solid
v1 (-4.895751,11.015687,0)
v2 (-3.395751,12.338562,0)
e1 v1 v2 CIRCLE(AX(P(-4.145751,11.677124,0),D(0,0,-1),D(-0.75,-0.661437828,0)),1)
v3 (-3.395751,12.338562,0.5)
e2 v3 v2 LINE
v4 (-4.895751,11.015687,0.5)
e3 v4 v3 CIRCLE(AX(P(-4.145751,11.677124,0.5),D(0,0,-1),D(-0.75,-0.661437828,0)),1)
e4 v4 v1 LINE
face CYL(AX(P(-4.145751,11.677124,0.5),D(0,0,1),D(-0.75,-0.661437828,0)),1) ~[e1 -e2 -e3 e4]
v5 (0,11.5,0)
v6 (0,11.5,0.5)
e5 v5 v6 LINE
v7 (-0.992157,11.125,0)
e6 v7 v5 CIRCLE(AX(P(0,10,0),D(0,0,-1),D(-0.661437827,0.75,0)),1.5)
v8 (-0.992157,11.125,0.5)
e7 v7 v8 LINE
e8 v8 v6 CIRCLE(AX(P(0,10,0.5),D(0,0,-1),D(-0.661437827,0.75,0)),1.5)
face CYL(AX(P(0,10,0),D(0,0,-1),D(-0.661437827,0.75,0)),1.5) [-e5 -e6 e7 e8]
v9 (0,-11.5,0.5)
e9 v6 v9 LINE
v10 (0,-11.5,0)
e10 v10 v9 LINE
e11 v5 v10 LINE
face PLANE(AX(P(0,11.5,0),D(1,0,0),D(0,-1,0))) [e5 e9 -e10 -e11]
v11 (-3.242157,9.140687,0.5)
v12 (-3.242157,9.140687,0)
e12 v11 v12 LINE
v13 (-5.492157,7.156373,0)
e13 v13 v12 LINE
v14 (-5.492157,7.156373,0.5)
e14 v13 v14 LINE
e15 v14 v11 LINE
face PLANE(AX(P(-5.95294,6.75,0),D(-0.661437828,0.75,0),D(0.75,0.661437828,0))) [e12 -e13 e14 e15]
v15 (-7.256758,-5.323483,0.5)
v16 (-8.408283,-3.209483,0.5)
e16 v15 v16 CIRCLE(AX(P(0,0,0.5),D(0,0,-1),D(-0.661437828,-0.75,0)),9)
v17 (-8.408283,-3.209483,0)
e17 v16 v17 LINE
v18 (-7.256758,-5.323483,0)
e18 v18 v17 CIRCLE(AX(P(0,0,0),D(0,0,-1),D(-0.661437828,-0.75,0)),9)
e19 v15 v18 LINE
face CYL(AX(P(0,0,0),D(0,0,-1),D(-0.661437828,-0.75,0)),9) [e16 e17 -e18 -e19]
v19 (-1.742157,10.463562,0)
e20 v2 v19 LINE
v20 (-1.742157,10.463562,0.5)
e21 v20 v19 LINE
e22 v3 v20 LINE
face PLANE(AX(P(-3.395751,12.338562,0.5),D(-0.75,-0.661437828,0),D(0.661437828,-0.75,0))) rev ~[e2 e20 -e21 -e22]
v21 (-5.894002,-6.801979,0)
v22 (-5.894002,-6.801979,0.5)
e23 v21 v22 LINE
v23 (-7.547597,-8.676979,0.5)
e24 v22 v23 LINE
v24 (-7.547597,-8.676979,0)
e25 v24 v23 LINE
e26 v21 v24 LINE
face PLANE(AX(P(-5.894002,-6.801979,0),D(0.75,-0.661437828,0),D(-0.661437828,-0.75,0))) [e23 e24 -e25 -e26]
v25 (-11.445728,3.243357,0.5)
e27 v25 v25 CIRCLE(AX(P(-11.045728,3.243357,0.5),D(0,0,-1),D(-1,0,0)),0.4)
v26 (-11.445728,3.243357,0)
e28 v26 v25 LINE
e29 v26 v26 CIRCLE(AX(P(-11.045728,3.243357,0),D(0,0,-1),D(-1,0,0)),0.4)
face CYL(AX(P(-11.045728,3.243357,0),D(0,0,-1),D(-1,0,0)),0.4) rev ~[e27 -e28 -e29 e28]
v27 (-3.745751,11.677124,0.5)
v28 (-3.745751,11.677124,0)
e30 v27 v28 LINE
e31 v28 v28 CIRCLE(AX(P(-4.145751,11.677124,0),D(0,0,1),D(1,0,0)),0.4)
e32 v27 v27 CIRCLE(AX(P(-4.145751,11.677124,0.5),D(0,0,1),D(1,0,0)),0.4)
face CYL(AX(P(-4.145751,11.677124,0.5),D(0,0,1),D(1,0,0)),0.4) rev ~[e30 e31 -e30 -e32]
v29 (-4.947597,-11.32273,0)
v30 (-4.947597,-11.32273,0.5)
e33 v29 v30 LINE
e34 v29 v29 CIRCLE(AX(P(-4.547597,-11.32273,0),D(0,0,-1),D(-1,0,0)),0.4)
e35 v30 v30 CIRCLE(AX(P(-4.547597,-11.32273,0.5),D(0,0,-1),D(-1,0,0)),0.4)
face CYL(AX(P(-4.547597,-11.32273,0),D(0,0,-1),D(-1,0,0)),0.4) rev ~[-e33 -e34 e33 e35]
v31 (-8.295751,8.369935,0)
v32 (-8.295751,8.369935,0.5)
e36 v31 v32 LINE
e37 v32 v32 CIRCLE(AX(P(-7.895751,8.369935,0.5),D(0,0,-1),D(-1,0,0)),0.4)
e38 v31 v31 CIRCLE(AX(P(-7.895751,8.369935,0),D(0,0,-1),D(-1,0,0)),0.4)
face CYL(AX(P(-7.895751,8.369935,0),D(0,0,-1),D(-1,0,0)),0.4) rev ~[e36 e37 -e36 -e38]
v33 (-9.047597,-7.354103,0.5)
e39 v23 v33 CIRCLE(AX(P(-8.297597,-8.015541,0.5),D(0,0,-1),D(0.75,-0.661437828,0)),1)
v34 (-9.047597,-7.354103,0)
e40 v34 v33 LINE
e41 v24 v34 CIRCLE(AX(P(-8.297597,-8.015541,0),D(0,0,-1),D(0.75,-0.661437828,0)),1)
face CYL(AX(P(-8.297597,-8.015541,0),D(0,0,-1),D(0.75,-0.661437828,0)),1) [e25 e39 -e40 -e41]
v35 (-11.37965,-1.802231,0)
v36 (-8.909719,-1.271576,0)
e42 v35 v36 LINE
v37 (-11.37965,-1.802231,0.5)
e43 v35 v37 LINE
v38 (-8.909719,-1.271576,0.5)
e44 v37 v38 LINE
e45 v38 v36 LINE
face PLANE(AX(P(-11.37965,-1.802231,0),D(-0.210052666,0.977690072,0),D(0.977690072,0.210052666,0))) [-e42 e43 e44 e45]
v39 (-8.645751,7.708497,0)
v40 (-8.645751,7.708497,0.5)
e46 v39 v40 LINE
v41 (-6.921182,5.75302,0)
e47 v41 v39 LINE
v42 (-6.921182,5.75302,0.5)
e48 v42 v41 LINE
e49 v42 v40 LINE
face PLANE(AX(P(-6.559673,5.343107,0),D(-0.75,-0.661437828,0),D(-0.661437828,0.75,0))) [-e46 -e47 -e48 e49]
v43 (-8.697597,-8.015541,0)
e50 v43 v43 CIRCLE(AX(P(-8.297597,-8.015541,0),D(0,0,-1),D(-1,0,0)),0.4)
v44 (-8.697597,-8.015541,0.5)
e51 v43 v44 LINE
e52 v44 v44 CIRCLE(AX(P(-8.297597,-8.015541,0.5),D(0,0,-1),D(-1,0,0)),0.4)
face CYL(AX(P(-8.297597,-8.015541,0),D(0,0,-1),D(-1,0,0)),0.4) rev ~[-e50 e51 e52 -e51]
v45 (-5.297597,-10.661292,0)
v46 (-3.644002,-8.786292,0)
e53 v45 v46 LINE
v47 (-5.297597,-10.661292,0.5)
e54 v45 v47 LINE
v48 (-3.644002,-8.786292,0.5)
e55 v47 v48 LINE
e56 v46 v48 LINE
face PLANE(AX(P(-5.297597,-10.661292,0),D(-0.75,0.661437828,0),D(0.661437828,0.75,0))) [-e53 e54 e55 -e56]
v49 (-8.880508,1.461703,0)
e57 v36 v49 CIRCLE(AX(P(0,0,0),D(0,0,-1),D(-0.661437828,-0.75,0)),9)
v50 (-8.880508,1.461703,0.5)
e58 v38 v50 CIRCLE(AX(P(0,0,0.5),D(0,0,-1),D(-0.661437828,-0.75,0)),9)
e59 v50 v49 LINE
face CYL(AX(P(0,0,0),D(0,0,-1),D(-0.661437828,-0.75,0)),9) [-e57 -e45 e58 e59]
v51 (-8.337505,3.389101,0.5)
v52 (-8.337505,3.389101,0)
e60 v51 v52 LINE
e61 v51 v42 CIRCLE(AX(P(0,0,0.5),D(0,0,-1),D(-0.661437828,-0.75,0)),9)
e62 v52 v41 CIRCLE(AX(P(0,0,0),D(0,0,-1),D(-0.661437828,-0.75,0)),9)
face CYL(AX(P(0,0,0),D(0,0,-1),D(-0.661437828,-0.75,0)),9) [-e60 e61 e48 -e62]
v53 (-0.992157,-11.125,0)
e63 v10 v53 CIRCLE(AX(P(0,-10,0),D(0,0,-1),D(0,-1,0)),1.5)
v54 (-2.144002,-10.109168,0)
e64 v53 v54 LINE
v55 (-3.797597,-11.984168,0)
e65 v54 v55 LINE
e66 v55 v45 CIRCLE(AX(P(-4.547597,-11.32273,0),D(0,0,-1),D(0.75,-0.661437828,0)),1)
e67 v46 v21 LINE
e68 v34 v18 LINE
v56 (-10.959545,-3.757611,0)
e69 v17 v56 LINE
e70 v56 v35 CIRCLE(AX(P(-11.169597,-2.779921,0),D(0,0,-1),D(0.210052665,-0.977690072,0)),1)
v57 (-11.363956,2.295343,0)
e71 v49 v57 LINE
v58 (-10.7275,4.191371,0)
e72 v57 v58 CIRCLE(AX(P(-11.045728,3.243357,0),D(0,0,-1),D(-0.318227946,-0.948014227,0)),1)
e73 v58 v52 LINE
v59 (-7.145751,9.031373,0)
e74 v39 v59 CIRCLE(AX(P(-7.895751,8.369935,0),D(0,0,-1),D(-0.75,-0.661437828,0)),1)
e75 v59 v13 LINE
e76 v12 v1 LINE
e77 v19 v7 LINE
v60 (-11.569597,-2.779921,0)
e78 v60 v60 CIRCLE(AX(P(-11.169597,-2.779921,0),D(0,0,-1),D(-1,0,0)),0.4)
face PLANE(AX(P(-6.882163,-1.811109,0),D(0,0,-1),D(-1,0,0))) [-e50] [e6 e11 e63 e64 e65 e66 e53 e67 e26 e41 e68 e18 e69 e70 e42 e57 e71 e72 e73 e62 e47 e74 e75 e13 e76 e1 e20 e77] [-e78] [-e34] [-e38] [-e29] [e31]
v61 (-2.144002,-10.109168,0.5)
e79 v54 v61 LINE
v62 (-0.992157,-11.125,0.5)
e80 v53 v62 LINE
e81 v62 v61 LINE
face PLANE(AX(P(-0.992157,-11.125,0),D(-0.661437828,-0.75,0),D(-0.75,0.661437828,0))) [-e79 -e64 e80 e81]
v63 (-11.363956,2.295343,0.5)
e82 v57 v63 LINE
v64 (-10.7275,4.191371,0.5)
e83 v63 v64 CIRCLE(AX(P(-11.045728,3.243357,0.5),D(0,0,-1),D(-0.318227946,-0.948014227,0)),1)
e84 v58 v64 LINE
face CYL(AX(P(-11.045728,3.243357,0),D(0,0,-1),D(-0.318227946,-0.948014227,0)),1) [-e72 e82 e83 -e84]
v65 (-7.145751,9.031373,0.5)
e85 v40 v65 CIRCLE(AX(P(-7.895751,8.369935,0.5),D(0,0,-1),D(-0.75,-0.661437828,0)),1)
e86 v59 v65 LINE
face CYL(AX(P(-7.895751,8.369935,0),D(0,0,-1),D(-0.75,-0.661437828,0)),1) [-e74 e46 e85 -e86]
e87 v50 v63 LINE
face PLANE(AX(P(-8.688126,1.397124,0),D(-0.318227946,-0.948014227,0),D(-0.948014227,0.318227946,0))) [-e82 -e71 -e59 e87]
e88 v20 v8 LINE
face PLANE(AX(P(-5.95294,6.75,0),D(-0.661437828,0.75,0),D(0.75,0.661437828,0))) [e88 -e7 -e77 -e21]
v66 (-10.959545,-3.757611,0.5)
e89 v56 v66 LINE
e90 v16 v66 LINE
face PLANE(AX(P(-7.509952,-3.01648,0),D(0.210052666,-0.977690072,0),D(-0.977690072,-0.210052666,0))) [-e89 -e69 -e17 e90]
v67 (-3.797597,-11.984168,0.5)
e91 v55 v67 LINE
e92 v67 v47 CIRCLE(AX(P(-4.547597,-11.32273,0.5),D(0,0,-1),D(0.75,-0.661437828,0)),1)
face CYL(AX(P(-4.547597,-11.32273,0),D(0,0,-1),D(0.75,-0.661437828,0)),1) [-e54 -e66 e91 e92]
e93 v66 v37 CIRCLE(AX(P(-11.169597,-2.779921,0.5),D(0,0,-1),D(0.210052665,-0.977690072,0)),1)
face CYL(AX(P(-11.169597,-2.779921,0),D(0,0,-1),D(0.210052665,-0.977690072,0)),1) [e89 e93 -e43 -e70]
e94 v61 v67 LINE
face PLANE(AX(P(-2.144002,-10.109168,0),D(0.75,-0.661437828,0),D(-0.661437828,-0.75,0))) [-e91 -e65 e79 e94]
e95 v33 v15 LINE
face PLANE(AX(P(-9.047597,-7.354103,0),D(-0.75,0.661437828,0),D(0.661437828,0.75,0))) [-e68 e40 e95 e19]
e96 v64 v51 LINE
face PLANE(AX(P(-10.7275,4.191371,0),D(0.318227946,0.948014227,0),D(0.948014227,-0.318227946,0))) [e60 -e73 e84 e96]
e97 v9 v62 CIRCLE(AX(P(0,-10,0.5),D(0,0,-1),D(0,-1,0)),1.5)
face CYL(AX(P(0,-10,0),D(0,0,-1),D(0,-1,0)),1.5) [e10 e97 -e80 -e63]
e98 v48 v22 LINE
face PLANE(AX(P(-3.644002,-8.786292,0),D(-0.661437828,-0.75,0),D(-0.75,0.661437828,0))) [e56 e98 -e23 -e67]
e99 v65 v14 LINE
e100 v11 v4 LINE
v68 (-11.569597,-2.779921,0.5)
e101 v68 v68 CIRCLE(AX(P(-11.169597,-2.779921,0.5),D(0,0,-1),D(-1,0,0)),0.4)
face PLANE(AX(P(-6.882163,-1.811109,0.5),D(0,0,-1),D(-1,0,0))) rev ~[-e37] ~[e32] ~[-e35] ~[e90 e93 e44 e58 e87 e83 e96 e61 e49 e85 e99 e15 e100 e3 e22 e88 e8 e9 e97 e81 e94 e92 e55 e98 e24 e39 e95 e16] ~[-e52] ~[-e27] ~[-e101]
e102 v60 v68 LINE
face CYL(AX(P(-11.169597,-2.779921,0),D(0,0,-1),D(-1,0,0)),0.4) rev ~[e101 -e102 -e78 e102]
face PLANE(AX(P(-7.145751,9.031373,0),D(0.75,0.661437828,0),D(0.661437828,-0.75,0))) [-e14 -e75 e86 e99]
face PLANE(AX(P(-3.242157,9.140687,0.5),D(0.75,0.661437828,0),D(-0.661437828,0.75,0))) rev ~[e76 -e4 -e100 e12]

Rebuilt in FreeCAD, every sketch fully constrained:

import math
import FreeCAD as App
import Part
import Sketcher

V = App.Vector

doc = App.newDocument("Part")
body = doc.addObject("PartDesign::Body", "Body")

# Sketch on XY plane
sketch1 = body.newObject("Sketcher::SketchObject", "Sketch")
sketch1.AttachmentSupport = (doc.getObject("XY_Plane"), [""])
sketch1.MapMode = "FlatFace"
sketch1.addGeometry(Part.LineSegment(V(0, -11.5, 0), V(0, 11.5, 0)), False)
sketch1.addGeometry(Part.ArcOfCircle(Part.Circle(V(0, 10, 0), V(0, 0, 1), 1.5), math.radians(90), math.radians(131.409622)), False)
sketch1.addGeometry(Part.LineSegment(V(-0.992157, 11.125, 0), V(-5.95294, 6.75, 0)), False)
sketch1.addGeometry(Part.ArcOfCircle(Part.Circle(V(0, 0, 0), V(0, 0, 1), 9), math.radians(131.409622), math.radians(228.590378)), False)
sketch1.addGeometry(Part.LineSegment(V(-5.95294, -6.75, 0), V(-0.992157, -11.125, 0)), False)
sketch1.addGeometry(Part.ArcOfCircle(Part.Circle(V(0, -10, 0), V(0, 0, 1), 1.5), math.radians(-131.409622), math.radians(-90)), False)
sketch1.addConstraint(Sketcher.Constraint("Coincident", 0, 2, 1, 1))
sketch1.addConstraint(Sketcher.Constraint("Tangent", 1, 2, 2, 1))
sketch1.addConstraint(Sketcher.Constraint("Tangent", 2, 2, 3, 1))
sketch1.addConstraint(Sketcher.Constraint("Tangent", 3, 2, 4, 1))
sketch1.addConstraint(Sketcher.Constraint("Tangent", 4, 2, 5, 1))
sketch1.addConstraint(Sketcher.Constraint("Coincident", 5, 2, 0, 1))
sketch1.addConstraint(Sketcher.Constraint("Vertical", 0))
sketch1.addConstraint(Sketcher.Constraint("Coincident", 3, 3, -1, 1))
sketch1.addConstraint(Sketcher.Constraint("Equal", 1, 5))
sketch1.addConstraint(Sketcher.Constraint("Symmetric", 1, 3, 5, 3, -1, 1))
sketch1.addConstraint(Sketcher.Constraint("PointOnObject", 1, 3, -2))
sketch1.addConstraint(Sketcher.Constraint("PointOnObject", 0, 2, -2))
sketch1.addConstraint(Sketcher.Constraint("Radius", 3, 9.0))
sketch1.addConstraint(Sketcher.Constraint("Radius", 1, 1.5))
sketch1.addConstraint(Sketcher.Constraint("DistanceY", 0, 1, 0, 2, 23.0))
pad1 = body.newObject("PartDesign::Pad", "Pad")
pad1.Profile = sketch1
pad1.Length = 0.5

# Sketch on XY plane
sketch2 = body.newObject("Sketcher::SketchObject", "Sketch001")
sketch2.AttachmentSupport = (doc.getObject("XY_Plane"), [""])
sketch2.MapMode = "FlatFace"
sketch2.AttachmentOffset = App.Placement(V(0, 0, 0.5), App.Rotation())
sketch2.addGeometry(Part.LineSegment(V(-1.742157, 10.463562, 0), V(-3.395751, 12.338562, 0)), False)
sketch2.addGeometry(Part.ArcOfCircle(Part.Circle(V(-4.145751, 11.677124, 0), V(0, 0, 1), 1), math.radians(41.409622), math.radians(221.409622)), False)
sketch2.addGeometry(Part.LineSegment(V(-4.895751, 11.015687, 0), V(-3.242157, 9.140687, 0)), False)
sketch2.addGeometry(Part.LineSegment(V(-3.242157, 9.140687, 0), V(-1.742157, 10.463562, 0)), False)
sketch2.addGeometry(Part.Circle(V(-4.145751, 11.677124, 0), V(0, 0, 1), 0.4), False)
sketch2.addConstraint(Sketcher.Constraint("Tangent", 0, 2, 1, 1))
sketch2.addConstraint(Sketcher.Constraint("Tangent", 1, 2, 2, 1))
sketch2.addConstraint(Sketcher.Constraint("Coincident", 2, 2, 3, 1))
sketch2.addConstraint(Sketcher.Constraint("Coincident", 3, 2, 0, 1))
sketch2.addConstraint(Sketcher.Constraint("Coincident", 4, 3, 1, 3))
sketch2.addConstraint(Sketcher.Constraint("Parallel", 0, 2))
sketch2.addConstraint(Sketcher.Constraint("Perpendicular", 2, 3))
sketch2.addConstraint(Sketcher.Constraint("Radius", 1, 1.0))
sketch2.addConstraint(Sketcher.Constraint("Diameter", 4, 0.8))
sketch2.addConstraint(Sketcher.Constraint("Distance", 0, 2.5))
sketch2.addConstraint(Sketcher.Constraint("DistanceX", 1, 2, 0, 2, 1.5))
sketch2.addConstraint(Sketcher.Constraint("DistanceX", 1, 3, -1, 1, 4.145751))
sketch2.addConstraint(Sketcher.Constraint("DistanceY", -1, 1, 1, 3, 11.677124))
pad2 = body.newObject("PartDesign::Pad", "Pad001")
pad2.Profile = sketch2
pad2.Length = 0.5
pad2.Reversed = True

# Sketch on XY plane
sketch3 = body.newObject("Sketcher::SketchObject", "Sketch002")
sketch3.AttachmentSupport = (doc.getObject("XY_Plane"), [""])
sketch3.MapMode = "FlatFace"
sketch3.addGeometry(Part.LineSegment(V(-7.145751, 9.031373, 0), V(-5.492157, 7.156373, 0)), False)
sketch3.addGeometry(Part.LineSegment(V(-5.492157, 7.156373, 0), V(-2.144002, -10.109168, 0)), False)
sketch3.addGeometry(Part.LineSegment(V(-2.144002, -10.109168, 0), V(-3.797597, -11.984168, 0)), False)
sketch3.addGeometry(Part.ArcOfCircle(Part.Circle(V(-4.547597, -11.32273, 0), V(0, 0, 1), 1), math.radians(138.590378), math.radians(318.590378)), False)
sketch3.addGeometry(Part.LineSegment(V(-5.297597, -10.661292, 0), V(-3.644002, -8.786292, 0)), False)
sketch3.addGeometry(Part.LineSegment(V(-3.644002, -8.786292, 0), V(-5.894002, -6.801979, 0)), False)
sketch3.addGeometry(Part.LineSegment(V(-5.894002, -6.801979, 0), V(-7.547597, -8.676979, 0)), False)
sketch3.addGeometry(Part.ArcOfCircle(Part.Circle(V(-8.297597, -8.015541, 0), V(0, 0, 1), 1), math.radians(138.590378), math.radians(318.590378)), False)
sketch3.addGeometry(Part.LineSegment(V(-9.047597, -7.354103, 0), V(-7.061797, -5.102418, 0)), False)
sketch3.addGeometry(Part.LineSegment(V(-7.061797, -5.102418, 0), V(-7.509952, -3.01648, 0)), False)
sketch3.addGeometry(Part.LineSegment(V(-7.509952, -3.01648, 0), V(-10.959545, -3.757611, 0)), False)
sketch3.addGeometry(Part.ArcOfCircle(Part.Circle(V(-11.169597, -2.779921, 0), V(0, 0, 1), 1), math.radians(102.125439), math.radians(282.125439)), False)
sketch3.addGeometry(Part.LineSegment(V(-11.37965, -1.802231, 0), V(-8.149842, -1.10832, 0)), False)
sketch3.addGeometry(Part.LineSegment(V(-8.149842, -1.10832, 0), V(-8.688126, 1.397124, 0)), False)
sketch3.addGeometry(Part.LineSegment(V(-8.688126, 1.397124, 0), V(-11.363956, 2.295343, 0)), False)
sketch3.addGeometry(Part.ArcOfCircle(Part.Circle(V(-11.045728, 3.243357, 0), V(0, 0, 1), 1), math.radians(71.444208), math.radians(251.444208)), False)
sketch3.addGeometry(Part.LineSegment(V(-10.7275, 4.191371, 0), V(-8.034608, 3.287425, 0)), False)
sketch3.addGeometry(Part.LineSegment(V(-8.034608, 3.287425, 0), V(-6.559673, 5.343107, 0)), False)
sketch3.addGeometry(Part.LineSegment(V(-6.559673, 5.343107, 0), V(-8.645751, 7.708497, 0)), False)
sketch3.addGeometry(Part.ArcOfCircle(Part.Circle(V(-7.895751, 8.369935, 0), V(0, 0, 1), 1), math.radians(41.409622), math.radians(221.409622)), False)
sketch3.addGeometry(Part.Circle(V(-4.547597, -11.32273, 0), V(0, 0, 1), 0.4), False)
sketch3.addGeometry(Part.Circle(V(-8.297597, -8.015541, 0), V(0, 0, 1), 0.4), False)
sketch3.addGeometry(Part.Circle(V(-11.169597, -2.779921, 0), V(0, 0, 1), 0.4), False)
sketch3.addGeometry(Part.Circle(V(-11.045728, 3.243357, 0), V(0, 0, 1), 0.4), False)
sketch3.addGeometry(Part.Circle(V(-7.895751, 8.369935, 0), V(0, 0, 1), 0.4), False)
sketch3.addConstraint(Sketcher.Constraint("Coincident", 0, 2, 1, 1))
sketch3.addConstraint(Sketcher.Constraint("Coincident", 1, 2, 2, 1))
sketch3.addConstraint(Sketcher.Constraint("Tangent", 2, 2, 3, 2))
sketch3.addConstraint(Sketcher.Constraint("Tangent", 3, 1, 4, 1))
sketch3.addConstraint(Sketcher.Constraint("Coincident", 4, 2, 5, 1))
sketch3.addConstraint(Sketcher.Constraint("Coincident", 5, 2, 6, 1))
sketch3.addConstraint(Sketcher.Constraint("Tangent", 6, 2, 7, 2))
sketch3.addConstraint(Sketcher.Constraint("Tangent", 7, 1, 8, 1))
sketch3.addConstraint(Sketcher.Constraint("Coincident", 8, 2, 9, 1))
sketch3.addConstraint(Sketcher.Constraint("Coincident", 9, 2, 10, 1))
sketch3.addConstraint(Sketcher.Constraint("Tangent", 10, 2, 11, 2))
sketch3.addConstraint(Sketcher.Constraint("Tangent", 11, 1, 12, 1))
sketch3.addConstraint(Sketcher.Constraint("Coincident", 12, 2, 13, 1))
sketch3.addConstraint(Sketcher.Constraint("Coincident", 13, 2, 14, 1))
sketch3.addConstraint(Sketcher.Constraint("Tangent", 14, 2, 15, 2))
sketch3.addConstraint(Sketcher.Constraint("Tangent", 15, 1, 16, 1))
sketch3.addConstraint(Sketcher.Constraint("Coincident", 16, 2, 17, 1))
sketch3.addConstraint(Sketcher.Constraint("Coincident", 17, 2, 18, 1))
sketch3.addConstraint(Sketcher.Constraint("Tangent", 18, 2, 19, 2))
sketch3.addConstraint(Sketcher.Constraint("Tangent", 19, 1, 0, 1))
sketch3.addConstraint(Sketcher.Constraint("Coincident", 20, 3, 3, 3))
sketch3.addConstraint(Sketcher.Constraint("Coincident", 21, 3, 7, 3))
sketch3.addConstraint(Sketcher.Constraint("Coincident", 22, 3, 11, 3))
sketch3.addConstraint(Sketcher.Constraint("Coincident", 23, 3, 15, 3))
sketch3.addConstraint(Sketcher.Constraint("Coincident", 24, 3, 19, 3))
sketch3.addConstraint(Sketcher.Constraint("Equal", 3, 7))
sketch3.addConstraint(Sketcher.Constraint("Equal", 7, 11))
sketch3.addConstraint(Sketcher.Constraint("Equal", 11, 15))
sketch3.addConstraint(Sketcher.Constraint("Equal", 15, 19))
sketch3.addConstraint(Sketcher.Constraint("Equal", 20, 21))
sketch3.addConstraint(Sketcher.Constraint("Equal", 21, 22))
sketch3.addConstraint(Sketcher.Constraint("Equal", 22, 23))
sketch3.addConstraint(Sketcher.Constraint("Equal", 23, 24))
sketch3.addConstraint(Sketcher.Constraint("Parallel", 2, 4))
sketch3.addConstraint(Sketcher.Constraint("Perpendicular", 4, 5))
sketch3.addConstraint(Sketcher.Constraint("Perpendicular", 5, 6))
sketch3.addConstraint(Sketcher.Constraint("Parallel", 6, 8))
sketch3.addConstraint(Sketcher.Constraint("Perpendicular", 9, 10))
sketch3.addConstraint(Sketcher.Constraint("Parallel", 10, 12))
sketch3.addConstraint(Sketcher.Constraint("Perpendicular", 12, 13))
sketch3.addConstraint(Sketcher.Constraint("Parallel", 14, 16))
sketch3.addConstraint(Sketcher.Constraint("Parallel", 0, 18))
sketch3.addConstraint(Sketcher.Constraint("Equal", 0, 2))
sketch3.addConstraint(Sketcher.Constraint("Equal", 2, 4))
sketch3.addConstraint(Sketcher.Constraint("Equal", 4, 6))
sketch3.addConstraint(Sketcher.Constraint("Radius", 3, 1.0))
sketch3.addConstraint(Sketcher.Constraint("Diameter", 20, 0.8))
sketch3.addConstraint(Sketcher.Constraint("Distance", 5, 3.0))
sketch3.addConstraint(Sketcher.Constraint("DistanceX", 7, 3, 3, 1, 3.0))
sketch3.addConstraint(Sketcher.Constraint("Distance", 0, 2.5))
sketch3.addConstraint(Sketcher.Constraint("DistanceX", 18, 2, 19, 1, 1.5))
sketch3.addConstraint(Sketcher.Constraint("DistanceX", 11, 3, 7, 3, 2.872001))
sketch3.addConstraint(Sketcher.Constraint("DistanceX", 15, 1, -1, 1, 10.7275))
sketch3.addConstraint(Sketcher.Constraint("DistanceX", 7, 1, 8, 2, 1.9858))
sketch3.addConstraint(Sketcher.Constraint("DistanceY", 5, 2, 9, 2, 3.785499))
sketch3.addConstraint(Sketcher.Constraint("DistanceY", 11, 3, 12, 2, 1.671601))
sketch3.addConstraint(Sketcher.Constraint("DistanceY", 13, 2, 16, 2, 1.890301))
sketch3.addConstraint(Sketcher.Constraint("Distance", 10, 3.528309))
sketch3.addConstraint(Sketcher.Constraint("Distance", 16, 2.840561))
sketch3.addConstraint(Sketcher.Constraint("Distance", 17, 2.530071))
sketch3.addConstraint(Sketcher.Constraint("DistanceY", 3, 3, -1, 1, 11.32273))
sketch3.addConstraint(Sketcher.Constraint("DistanceX", 15, 3, -1, 1, 11.045728))
sketch3.addConstraint(Sketcher.Constraint("DistanceX", 19, 3, -1, 1, 7.895751))
sketch3.addConstraint(Sketcher.Constraint("DistanceX", 11, 1, -1, 1, 11.37965))
sketch3.addConstraint(Sketcher.Constraint("DistanceY", 15, 3, 19, 3, 5.126578))
pad3 = body.newObject("PartDesign::Pad", "Pad002")
pad3.Profile = sketch3
pad3.Length = 0.5

doc.recompute()
